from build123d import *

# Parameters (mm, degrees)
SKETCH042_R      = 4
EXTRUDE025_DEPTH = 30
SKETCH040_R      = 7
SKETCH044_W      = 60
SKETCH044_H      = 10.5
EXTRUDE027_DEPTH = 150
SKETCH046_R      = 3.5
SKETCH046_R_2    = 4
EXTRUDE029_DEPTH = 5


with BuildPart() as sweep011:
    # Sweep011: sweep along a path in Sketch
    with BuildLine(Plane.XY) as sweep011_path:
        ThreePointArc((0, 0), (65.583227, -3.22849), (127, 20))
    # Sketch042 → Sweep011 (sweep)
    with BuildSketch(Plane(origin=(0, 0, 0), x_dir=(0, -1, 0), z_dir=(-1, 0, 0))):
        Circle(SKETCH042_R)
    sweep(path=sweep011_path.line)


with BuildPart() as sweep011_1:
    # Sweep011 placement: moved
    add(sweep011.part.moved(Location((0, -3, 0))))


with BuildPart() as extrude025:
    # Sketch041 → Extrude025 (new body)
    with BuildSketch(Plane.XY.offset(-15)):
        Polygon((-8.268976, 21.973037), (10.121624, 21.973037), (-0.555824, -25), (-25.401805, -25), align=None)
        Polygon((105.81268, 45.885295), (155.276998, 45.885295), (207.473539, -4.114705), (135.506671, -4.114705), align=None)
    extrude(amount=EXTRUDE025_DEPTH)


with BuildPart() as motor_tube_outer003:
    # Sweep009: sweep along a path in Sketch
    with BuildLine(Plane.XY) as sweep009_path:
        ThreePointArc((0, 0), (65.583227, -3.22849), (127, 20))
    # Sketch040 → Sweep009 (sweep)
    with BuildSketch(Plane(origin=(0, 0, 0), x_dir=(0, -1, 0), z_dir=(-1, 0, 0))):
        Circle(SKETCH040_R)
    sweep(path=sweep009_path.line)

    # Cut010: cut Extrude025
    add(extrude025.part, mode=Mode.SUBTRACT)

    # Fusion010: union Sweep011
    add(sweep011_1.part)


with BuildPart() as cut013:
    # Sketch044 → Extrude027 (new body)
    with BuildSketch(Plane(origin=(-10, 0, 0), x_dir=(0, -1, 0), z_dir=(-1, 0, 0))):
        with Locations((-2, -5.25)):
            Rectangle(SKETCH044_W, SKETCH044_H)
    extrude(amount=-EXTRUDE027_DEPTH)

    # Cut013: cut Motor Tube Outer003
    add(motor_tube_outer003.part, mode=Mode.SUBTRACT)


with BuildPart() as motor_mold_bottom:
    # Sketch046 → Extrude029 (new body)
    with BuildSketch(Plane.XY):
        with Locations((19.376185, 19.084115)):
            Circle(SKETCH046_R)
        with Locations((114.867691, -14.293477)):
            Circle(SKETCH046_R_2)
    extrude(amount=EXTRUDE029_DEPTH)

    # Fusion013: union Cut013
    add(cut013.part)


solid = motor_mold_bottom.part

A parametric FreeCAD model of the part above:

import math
import FreeCAD as App
import Part
import Sketcher
from FreeCAD import Vector

doc = App.newDocument("Part")
body = doc.addObject("PartDesign::Body", "Body")

# Sketch on YZ plane
sketch1 = doc.addObject("Sketcher::SketchObject", "Sketch")
body.addObject(sketch1)
sketch1.AttachmentSupport = (doc.YZ_Plane, [""])
sketch1.MapMode = "FlatFace"
sketch1.addGeometry(Part.Circle(Vector(0, 0, 0), Vector(0, 0, 1), 4), False)
sketch1.addConstraint([
    Sketcher.Constraint("Coincident", 0, 3, -1, 1),
    Sketcher.Constraint("Diameter", 0, 8.0),
])

# Sketch on XY plane
sketch2 = doc.addObject("Sketcher::SketchObject", "Sketch001")
body.addObject(sketch2)
sketch2.AttachmentSupport = (doc.XY_Plane, [""])
sketch2.MapMode = "FlatFace"
sketch2.addGeometry(Part.ArcOfCircle(Part.Circle(Vector(41, 156, 0), Vector(0, 0, 1), 161), math.radians(-105), math.radians(-58)), False)
sketch2.addConstraint([
    Sketcher.Constraint("Coincident", 0, 1, -1, 1),
    Sketcher.Constraint("DistanceX", -1, 1, 0, 2, 127.0),
    Sketcher.Constraint("DistanceY", -1, 1, 0, 2, 20.0),
    Sketcher.Constraint("Radius", 0, 160.981841),
])
doc.recompute()

additivepipe = doc.addObject("PartDesign::AdditivePipe", "AdditivePipe")
body.addObject(additivepipe)
additivepipe.Profile = sketch1
additivepipe.Spine = (sketch2, ["Edge1"])
body2 = doc.addObject("PartDesign::Body", "Body001")
doc.recompute()

body.Placement = App.Placement(Vector(0, -3, 0), App.Rotation(Vector(0, 0, 1), 0))
boolean = doc.addObject("PartDesign::Boolean", "Boolean")
body2.addObject(boolean)
boolean.Type = "Fuse"
boolean.addObjects([body])
body3 = doc.addObject("PartDesign::Body", "Body002")
body3.AllowCompound = True

# Sketch on XY plane
sketch3 = doc.addObject("Sketcher::SketchObject", "Sketch002")
body3.addObject(sketch3)
sketch3.AttachmentSupport = (doc.getObject("XY_Plane002"), [""])
sketch3.MapMode = "FlatFace"
sketch3.AttachmentOffset = App.Placement(Vector(0, 0, -15), App.Rotation())
sketch3.addGeometry([
    Part.LineSegment(Vector(10, 22, 0), Vector(-8, 22, 0)),  # 0
    Part.LineSegment(Vector(-8, 22, 0), Vector(-25, -25, 0)),  # 1
    Part.LineSegment(Vector(-25, -25, 0), Vector(-1, -25, 0)),  # 2
    Part.LineSegment(Vector(-1, -25, 0), Vector(10, 22, 0)),  # 3
    Part.LineSegment(Vector(155, 46, 0), Vector(106, 46, 0)),  # 4
    Part.LineSegment(Vector(106, 46, 0), Vector(136, -4, 0)),  # 5
    Part.LineSegment(Vector(136, -4, 0), Vector(207, -4, 0)),  # 6
    Part.LineSegment(Vector(207, -4, 0), Vector(155, 46, 0)),  # 7
], False)
sketch3.addConstraint([
    Sketcher.Constraint("Coincident", 0, 2, 1, 1),
    Sketcher.Constraint("Coincident", 1, 2, 2, 1),
    Sketcher.Constraint("Coincident", 2, 2, 3, 1),
    Sketcher.Constraint("Coincident", 3, 2, 0, 1),
    Sketcher.Constraint("Coincident", 4, 2, 5, 1),
    Sketcher.Constraint("Coincident", 5, 2, 6, 1),
    Sketcher.Constraint("Coincident", 6, 2, 7, 1),
    Sketcher.Constraint("Coincident", 7, 2, 4, 1),
    Sketcher.Constraint("Horizontal", 0),
    Sketcher.Constraint("Horizontal", 2),
    Sketcher.Constraint("Horizontal", 4),
    Sketcher.Constraint("Horizontal", 6),
    Sketcher.Constraint("Distance", 1, 50.0),
    Sketcher.Constraint("DistanceY", 1, 2, -1, 1, 25.0),
    Sketcher.Constraint("DistanceY", 5, 2, 4, 2, 50.0),
    Sketcher.Constraint("DistanceX", 0, 2, 0, 1, 18.3906),
    Sketcher.Constraint("DistanceX", -1, 1, 7, 2, 155.276998),
    Sketcher.Constraint("Distance", 3, 48.1713),
    Sketcher.Constraint("DistanceX", 2, 1, 2, 2, 24.845981),
    Sketcher.Constraint("Distance", 5, 58.152671),
    Sketcher.Constraint("DistanceX", 4, 2, 4, 1, 49.464318),
    Sketcher.Constraint("DistanceX", 6, 1, 6, 2, 71.966868),
    Sketcher.Constraint("DistanceX", 0, 2, -1, 1, 8.268976),
    Sketcher.Constraint("DistanceY", -1, 1, 4, 2, 45.885295),
])
pad1 = doc.addObject("PartDesign::Pad", "Pad")
body3.addObject(pad1)
pad1.Profile = sketch3
pad1.Length = 30
body4 = doc.addObject("PartDesign::Body", "Body003")

# Sketch on YZ plane
sketch4 = doc.addObject("Sketcher::SketchObject", "Sketch003")
body4.addObject(sketch4)
sketch4.AttachmentSupport = (doc.getObject("YZ_Plane003"), [""])
sketch4.MapMode = "FlatFace"
sketch4.addGeometry(Part.Circle(Vector(0, 0, 0), Vector(0, 0, 1), 7), False)
sketch4.addConstraint([
    Sketcher.Constraint("Coincident", 0, 3, -1, 1),
    Sketcher.Constraint("Diameter", 0, 14.0),
])

# Sketch on XY plane
sketch5 = doc.addObject("Sketcher::SketchObject", "Sketch004")
body4.addObject(sketch5)
sketch5.AttachmentSupport = (doc.getObject("XY_Plane003"), [""])
sketch5.MapMode = "FlatFace"
sketch5.addGeometry(Part.ArcOfCircle(Part.Circle(Vector(41, 156, 0), Vector(0, 0, 1), 161), math.radians(-105), math.radians(-58)), False)
sketch5.addConstraint([
    Sketcher.Constraint("Coincident", 0, 1, -1, 1),
    Sketcher.Constraint("DistanceX", -1, 1, 0, 2, 127.0),
    Sketcher.Constraint("DistanceY", -1, 1, 0, 2, 20.0),
    Sketcher.Constraint("Radius", 0, 160.981841),
])
doc.recompute()

additivepipe2 = doc.addObject("PartDesign::AdditivePipe", "AdditivePipe001")
body4.addObject(additivepipe2)
additivepipe2.Profile = sketch4
additivepipe2.Spine = (sketch5, ["Edge1"])
doc.recompute()

boolean2 = doc.addObject("PartDesign::Boolean", "Boolean001")
body4.addObject(boolean2)
boolean2.Type = "Cut"
boolean2.addObjects([body3])
doc.recompute()

boolean3 = doc.addObject("PartDesign::Boolean", "Boolean002")
body4.addObject(boolean3)
boolean3.Type = "Fuse"
boolean3.addObjects([body2])
body5 = doc.addObject("PartDesign::Body", "Body004")

# Sketch on YZ plane
sketch6 = doc.addObject("Sketcher::SketchObject", "Sketch005")
body5.addObject(sketch6)
sketch6.AttachmentSupport = (doc.getObject("YZ_Plane004"), [""])
sketch6.MapMode = "FlatFace"
sketch6.AttachmentOffset = App.Placement(Vector(0, 0, -10), App.Rotation())
sketch6.addGeometry([
    Part.LineSegment(Vector(32, 0, 0), Vector(32, -10, 0)),
    Part.LineSegment(Vector(32, -10, 0), Vector(-28, -10, 0)),
    Part.LineSegment(Vector(-28, -10, 0), Vector(-28, 0, 0)),
    Part.LineSegment(Vector(-28, 0, 0), Vector(32, 0, 0)),
], False)
sketch6.addConstraint([
    Sketcher.Constraint("Coincident", 0, 2, 1, 1),
    Sketcher.Constraint("Coincident", 1, 2, 2, 1),
    Sketcher.Constraint("Coincident", 2, 2, 3, 1),
    Sketcher.Constraint("Coincident", 3, 2, 0, 1),
    Sketcher.Constraint("Vertical", 0),
    Sketcher.Constraint("Horizontal", 1),
    Sketcher.Constraint("Vertical", 2),
    Sketcher.Constraint("Horizontal", 3),
    Sketcher.Constraint("PointOnObject", 2, 2, -1),
    Sketcher.Constraint("DistanceX", 1, 2, 1, 1, 60.0),
    Sketcher.Constraint("DistanceY", 0, 2, 0, 1, 10.5),
    Sketcher.Constraint("DistanceX", -1, 1, 0, 2, 32.0),
])
pad2 = doc.addObject("PartDesign::Pad", "Pad001")
body5.addObject(pad2)
pad2.Profile = sketch6
pad2.Length = 150
doc.recompute()

boolean4 = doc.addObject("PartDesign::Boolean", "Boolean003")
body5.addObject(boolean4)
boolean4.Type = "Cut"
boolean4.addObjects([body4])
body6 = doc.addObject("PartDesign::Body", "Body005")
body6.AllowCompound = True

# Sketch on XY plane
sketch7 = doc.addObject("Sketcher::SketchObject", "Sketch006")
body6.addObject(sketch7)
sketch7.AttachmentSupport = (doc.getObject("XY_Plane005"), [""])
sketch7.MapMode = "FlatFace"
sketch7.addGeometry([
    Part.Circle(Vector(19.4, 19.1, 0), Vector(0, 0, 1), 3.5),
    Part.Circle(Vector(114.9, -14.3, 0), Vector(0, 0, 1), 4),
], False)
sketch7.addConstraint([
    Sketcher.Constraint("Diameter", 0, 7.0),
    Sketcher.Constraint("Diameter", 1, 8.0),
    Sketcher.Constraint("DistanceX", -1, 1, 1, 3, 114.867691),
    Sketcher.Constraint("DistanceX", -1, 1, 0, 3, 19.376185),
    Sketcher.Constraint("DistanceY", -1, 1, 0, 3, 19.084115),
    Sketcher.Constraint("DistanceY", 1, 3, -1, 1, 14.293477),
])
pad3 = doc.addObject("PartDesign::Pad", "Pad002")
body6.addObject(pad3)
pad3.Profile = sketch7
pad3.Length = 5
doc.recompute()

boolean5 = doc.addObject("PartDesign::Boolean", "Boolean004")
body6.addObject(boolean5)
boolean5.Type = "Fuse"
boolean5.addObjects([body5])

doc.recompute()
